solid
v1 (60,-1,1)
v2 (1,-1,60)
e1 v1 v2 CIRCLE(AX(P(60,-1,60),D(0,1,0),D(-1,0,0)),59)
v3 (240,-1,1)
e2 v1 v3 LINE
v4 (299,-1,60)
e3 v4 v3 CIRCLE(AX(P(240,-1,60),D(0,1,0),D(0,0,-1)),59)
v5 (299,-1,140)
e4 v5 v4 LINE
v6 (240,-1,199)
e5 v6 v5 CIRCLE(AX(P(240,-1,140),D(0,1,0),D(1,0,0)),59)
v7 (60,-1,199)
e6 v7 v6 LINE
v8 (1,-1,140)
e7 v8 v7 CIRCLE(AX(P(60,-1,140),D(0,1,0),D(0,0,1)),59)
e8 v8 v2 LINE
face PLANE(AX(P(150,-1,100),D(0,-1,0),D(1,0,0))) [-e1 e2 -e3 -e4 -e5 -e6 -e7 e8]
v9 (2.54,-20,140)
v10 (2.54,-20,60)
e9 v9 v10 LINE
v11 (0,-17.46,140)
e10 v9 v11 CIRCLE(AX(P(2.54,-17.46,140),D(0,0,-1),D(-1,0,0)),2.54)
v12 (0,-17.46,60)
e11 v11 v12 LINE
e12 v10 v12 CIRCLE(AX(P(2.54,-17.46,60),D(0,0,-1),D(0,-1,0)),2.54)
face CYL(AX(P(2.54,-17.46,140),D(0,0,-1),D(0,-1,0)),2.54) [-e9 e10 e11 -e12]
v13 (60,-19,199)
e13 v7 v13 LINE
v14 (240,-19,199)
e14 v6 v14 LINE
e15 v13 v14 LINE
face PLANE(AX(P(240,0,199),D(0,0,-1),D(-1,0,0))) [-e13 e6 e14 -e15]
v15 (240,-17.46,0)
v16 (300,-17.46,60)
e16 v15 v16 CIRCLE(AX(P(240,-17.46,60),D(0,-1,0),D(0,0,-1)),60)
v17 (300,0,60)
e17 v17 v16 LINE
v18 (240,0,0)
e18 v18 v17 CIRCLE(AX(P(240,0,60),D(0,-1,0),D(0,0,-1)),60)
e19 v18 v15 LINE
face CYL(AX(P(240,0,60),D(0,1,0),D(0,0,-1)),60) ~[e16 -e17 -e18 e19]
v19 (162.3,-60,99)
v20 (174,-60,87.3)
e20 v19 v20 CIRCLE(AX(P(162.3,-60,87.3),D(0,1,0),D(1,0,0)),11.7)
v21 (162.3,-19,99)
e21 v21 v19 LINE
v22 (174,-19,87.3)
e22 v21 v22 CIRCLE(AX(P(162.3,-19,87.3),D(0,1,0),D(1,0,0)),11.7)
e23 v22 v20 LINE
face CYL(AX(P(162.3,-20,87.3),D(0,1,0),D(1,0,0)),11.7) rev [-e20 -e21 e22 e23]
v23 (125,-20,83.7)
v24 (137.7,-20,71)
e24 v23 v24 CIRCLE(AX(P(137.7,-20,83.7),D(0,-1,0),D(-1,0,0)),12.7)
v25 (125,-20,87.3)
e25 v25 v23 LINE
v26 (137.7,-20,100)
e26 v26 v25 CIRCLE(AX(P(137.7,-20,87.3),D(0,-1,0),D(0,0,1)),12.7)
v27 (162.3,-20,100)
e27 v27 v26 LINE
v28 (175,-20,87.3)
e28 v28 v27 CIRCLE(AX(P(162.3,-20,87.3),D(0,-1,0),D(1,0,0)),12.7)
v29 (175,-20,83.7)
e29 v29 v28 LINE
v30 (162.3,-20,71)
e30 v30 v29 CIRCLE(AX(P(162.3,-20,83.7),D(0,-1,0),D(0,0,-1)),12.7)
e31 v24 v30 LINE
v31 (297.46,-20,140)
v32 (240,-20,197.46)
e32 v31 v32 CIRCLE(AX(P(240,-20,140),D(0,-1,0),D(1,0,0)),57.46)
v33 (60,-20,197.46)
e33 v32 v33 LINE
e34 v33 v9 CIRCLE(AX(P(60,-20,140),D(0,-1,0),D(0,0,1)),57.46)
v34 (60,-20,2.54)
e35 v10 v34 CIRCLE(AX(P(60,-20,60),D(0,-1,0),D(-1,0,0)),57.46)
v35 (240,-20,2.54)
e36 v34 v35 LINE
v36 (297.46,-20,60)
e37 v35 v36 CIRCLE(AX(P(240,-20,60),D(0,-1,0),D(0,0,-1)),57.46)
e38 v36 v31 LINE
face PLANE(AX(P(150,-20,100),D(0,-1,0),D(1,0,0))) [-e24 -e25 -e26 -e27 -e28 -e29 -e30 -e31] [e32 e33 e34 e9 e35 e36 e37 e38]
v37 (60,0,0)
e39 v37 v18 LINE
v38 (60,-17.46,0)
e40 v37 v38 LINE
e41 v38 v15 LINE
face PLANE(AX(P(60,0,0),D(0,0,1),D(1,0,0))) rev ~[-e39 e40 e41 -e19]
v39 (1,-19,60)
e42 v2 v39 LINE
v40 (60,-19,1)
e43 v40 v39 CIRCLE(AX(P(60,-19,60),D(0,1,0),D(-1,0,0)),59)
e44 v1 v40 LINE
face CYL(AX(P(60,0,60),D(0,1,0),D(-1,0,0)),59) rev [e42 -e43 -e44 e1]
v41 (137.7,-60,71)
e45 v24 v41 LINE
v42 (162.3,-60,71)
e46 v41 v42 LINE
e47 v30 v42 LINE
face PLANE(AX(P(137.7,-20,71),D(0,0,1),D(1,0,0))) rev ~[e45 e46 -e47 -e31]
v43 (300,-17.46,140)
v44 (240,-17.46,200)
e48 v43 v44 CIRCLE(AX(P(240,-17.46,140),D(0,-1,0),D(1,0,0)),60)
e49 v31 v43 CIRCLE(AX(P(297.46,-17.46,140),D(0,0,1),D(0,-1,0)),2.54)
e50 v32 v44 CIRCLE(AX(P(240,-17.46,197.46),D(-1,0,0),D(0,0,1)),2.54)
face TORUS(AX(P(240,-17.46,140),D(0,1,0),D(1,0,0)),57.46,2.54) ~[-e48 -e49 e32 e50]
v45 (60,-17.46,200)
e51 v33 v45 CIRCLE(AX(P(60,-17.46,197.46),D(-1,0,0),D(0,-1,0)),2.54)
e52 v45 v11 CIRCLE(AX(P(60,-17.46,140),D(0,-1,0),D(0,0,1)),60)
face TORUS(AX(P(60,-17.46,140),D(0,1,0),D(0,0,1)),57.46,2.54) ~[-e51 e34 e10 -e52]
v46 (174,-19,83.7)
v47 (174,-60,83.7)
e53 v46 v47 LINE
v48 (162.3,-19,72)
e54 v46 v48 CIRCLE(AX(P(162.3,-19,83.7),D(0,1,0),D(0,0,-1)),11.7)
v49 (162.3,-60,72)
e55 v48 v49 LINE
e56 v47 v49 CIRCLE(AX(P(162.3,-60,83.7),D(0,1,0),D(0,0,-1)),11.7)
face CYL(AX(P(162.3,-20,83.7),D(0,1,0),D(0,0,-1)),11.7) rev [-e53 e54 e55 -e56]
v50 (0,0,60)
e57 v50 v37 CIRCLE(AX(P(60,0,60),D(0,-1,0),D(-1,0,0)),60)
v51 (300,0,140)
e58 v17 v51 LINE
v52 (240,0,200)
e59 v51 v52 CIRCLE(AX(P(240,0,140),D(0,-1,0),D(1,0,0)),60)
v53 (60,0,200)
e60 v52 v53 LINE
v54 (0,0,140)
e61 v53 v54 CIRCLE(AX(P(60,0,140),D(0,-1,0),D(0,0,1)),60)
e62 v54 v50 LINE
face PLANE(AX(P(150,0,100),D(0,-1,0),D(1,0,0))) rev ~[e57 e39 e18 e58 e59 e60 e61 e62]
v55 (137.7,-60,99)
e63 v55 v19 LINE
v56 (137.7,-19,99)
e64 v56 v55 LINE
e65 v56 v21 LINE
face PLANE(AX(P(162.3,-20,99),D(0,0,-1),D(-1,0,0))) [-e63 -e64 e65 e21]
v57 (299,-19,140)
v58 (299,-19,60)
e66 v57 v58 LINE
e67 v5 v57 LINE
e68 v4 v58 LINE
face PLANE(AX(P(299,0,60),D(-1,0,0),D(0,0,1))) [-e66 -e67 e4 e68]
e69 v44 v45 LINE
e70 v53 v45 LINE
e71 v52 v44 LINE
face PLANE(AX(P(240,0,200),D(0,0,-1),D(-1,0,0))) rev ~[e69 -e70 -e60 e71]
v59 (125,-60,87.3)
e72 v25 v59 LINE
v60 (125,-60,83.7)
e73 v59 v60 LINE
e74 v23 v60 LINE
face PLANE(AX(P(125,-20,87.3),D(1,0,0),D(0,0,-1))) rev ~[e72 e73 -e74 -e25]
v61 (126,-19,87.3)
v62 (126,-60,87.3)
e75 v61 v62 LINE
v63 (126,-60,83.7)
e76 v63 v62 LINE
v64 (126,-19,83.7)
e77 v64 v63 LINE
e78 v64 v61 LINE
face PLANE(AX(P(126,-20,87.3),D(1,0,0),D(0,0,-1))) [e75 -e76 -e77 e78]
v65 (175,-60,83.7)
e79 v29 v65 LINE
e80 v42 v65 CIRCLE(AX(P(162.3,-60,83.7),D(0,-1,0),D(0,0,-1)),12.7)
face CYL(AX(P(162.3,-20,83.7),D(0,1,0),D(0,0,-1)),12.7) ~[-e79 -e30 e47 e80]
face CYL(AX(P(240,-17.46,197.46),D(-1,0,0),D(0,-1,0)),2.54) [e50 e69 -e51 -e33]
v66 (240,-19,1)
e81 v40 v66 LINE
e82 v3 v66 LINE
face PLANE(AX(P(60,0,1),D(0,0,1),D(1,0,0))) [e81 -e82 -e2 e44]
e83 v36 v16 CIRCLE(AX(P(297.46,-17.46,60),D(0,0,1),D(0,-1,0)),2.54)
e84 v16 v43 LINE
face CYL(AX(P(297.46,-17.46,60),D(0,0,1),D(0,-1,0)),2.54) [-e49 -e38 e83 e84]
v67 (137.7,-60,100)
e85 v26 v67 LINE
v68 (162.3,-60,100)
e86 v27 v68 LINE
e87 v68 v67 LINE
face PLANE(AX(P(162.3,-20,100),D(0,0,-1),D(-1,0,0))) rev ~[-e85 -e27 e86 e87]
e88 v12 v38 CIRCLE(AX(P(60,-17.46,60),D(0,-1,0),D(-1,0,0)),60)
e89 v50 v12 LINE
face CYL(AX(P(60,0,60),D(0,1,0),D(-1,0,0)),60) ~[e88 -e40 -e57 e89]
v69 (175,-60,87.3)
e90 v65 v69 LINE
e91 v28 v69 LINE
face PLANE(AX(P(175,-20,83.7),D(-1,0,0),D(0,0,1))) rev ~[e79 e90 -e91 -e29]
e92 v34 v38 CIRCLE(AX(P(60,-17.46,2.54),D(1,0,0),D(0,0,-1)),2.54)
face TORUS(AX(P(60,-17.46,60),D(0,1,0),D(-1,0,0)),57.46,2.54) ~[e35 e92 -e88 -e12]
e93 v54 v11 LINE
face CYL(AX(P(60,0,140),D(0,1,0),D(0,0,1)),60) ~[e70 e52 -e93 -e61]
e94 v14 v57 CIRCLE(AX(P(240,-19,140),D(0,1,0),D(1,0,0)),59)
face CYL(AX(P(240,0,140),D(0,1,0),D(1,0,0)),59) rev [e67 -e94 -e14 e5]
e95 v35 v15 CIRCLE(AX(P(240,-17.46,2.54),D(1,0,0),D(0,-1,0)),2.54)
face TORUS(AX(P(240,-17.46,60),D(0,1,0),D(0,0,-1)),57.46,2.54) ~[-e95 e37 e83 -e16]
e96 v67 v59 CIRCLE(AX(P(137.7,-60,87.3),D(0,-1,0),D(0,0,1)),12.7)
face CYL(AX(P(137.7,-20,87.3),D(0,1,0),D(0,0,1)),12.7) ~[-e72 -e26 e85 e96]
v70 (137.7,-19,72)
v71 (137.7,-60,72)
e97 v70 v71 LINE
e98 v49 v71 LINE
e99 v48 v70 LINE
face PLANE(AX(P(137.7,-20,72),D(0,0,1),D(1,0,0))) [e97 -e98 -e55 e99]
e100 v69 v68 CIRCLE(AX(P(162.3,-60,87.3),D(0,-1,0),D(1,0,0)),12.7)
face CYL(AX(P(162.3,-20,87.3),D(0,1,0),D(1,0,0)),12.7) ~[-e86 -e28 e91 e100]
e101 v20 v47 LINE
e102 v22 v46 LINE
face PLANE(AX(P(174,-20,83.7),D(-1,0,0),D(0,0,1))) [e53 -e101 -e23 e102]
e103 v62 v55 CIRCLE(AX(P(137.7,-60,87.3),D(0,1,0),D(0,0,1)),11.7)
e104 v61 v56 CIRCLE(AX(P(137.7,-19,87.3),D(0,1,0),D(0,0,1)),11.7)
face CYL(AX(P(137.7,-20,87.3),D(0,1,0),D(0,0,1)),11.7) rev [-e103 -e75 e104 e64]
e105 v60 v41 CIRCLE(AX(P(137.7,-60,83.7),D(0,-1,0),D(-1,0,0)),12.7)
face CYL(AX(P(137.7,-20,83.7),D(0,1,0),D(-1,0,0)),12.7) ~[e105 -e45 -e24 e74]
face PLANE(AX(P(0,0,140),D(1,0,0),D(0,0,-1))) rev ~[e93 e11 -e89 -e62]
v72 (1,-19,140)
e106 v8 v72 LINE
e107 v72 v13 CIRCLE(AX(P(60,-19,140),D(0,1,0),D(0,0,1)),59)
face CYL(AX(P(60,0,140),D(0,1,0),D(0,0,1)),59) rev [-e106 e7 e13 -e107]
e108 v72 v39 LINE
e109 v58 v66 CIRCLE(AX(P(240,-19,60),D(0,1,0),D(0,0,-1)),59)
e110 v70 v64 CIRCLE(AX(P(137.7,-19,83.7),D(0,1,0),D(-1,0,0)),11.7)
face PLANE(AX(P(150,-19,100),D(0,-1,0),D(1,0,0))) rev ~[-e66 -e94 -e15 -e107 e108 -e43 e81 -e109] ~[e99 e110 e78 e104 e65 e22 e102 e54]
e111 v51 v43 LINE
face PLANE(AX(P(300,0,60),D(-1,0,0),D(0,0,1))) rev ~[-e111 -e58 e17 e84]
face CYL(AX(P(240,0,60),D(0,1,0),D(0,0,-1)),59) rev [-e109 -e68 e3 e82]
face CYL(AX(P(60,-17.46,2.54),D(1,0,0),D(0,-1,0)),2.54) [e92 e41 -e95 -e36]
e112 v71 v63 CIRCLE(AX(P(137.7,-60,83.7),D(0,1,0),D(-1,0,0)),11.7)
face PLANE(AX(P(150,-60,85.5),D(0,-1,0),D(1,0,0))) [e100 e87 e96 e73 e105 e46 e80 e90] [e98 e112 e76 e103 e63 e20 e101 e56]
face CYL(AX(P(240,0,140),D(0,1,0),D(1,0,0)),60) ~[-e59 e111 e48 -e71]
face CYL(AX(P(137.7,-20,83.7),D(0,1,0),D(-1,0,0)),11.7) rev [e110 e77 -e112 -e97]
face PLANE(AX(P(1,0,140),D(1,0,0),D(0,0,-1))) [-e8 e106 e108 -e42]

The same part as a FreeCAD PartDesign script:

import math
import FreeCAD as App
import Part
import Sketcher
Q = App.Units.Quantity


def edges_at(feature, points):
    """Names of the edges that pass closest to the given points."""
    edges = feature.Shape.Edges
    near = lambda p: min(range(len(edges)), key=lambda i: edges[i].distToShape(Part.Vertex(*p))[0])
    return sorted({f"Edge{near(p) + 1}" for p in points})


def faces_at(feature, points):
    """Names of the faces that lie closest to the given points."""
    faces = feature.Shape.Faces
    near = lambda p: min(range(len(faces)), key=lambda i: faces[i].distToShape(Part.Vertex(*p))[0])
    return sorted({f"Face{near(p) + 1}" for p in points})

doc = App.newDocument("Part")
body = doc.addObject("PartDesign::Body", "Body")

sketch1 = body.newObject("Sketcher::SketchObject", "Sketch")
sketch1.AttachmentSupport = (doc.getObject("XZ_Plane"), [""])
sketch1.MapMode = "FlatFace"
sketch1.addGeometry([
    Part.ArcOfCircle(Part.Circle(App.Vector(60, 60, 0), App.Vector(0, 0, 1), 60), math.radians(180), math.radians(270)),
    Part.LineSegment(App.Vector(60, 0, 0), App.Vector(240, 0, 0)),
    Part.ArcOfCircle(Part.Circle(App.Vector(240, 60, 0), App.Vector(0, 0, 1), 60), math.radians(-90), math.radians(0)),
    Part.LineSegment(App.Vector(300, 60, 0), App.Vector(300, 140, 0)),
    Part.ArcOfCircle(Part.Circle(App.Vector(240, 140, 0), App.Vector(0, 0, 1), 60), math.radians(0), math.radians(90)),
    Part.LineSegment(App.Vector(240, 200, 0), App.Vector(60, 200, 0)),
    Part.ArcOfCircle(Part.Circle(App.Vector(60, 140, 0), App.Vector(0, 0, 1), 60), math.radians(90), math.radians(180)),
    Part.LineSegment(App.Vector(0, 140, 0), App.Vector(0, 60, 0)),
], False)
sketch1.addConstraint([
    Sketcher.Constraint("Tangent", 0, 2, 1, 1),
    Sketcher.Constraint("Tangent", 1, 2, 2, 1),
    Sketcher.Constraint("Tangent", 2, 2, 3, 1),
    Sketcher.Constraint("Tangent", 3, 2, 4, 1),
    Sketcher.Constraint("Tangent", 4, 2, 5, 1),
    Sketcher.Constraint("Tangent", 5, 2, 6, 1),
    Sketcher.Constraint("Tangent", 6, 2, 7, 1),
    Sketcher.Constraint("Tangent", 7, 2, 0, 1),
    Sketcher.Constraint("Horizontal", 1),
    Sketcher.Constraint("Vertical", 3),
    Sketcher.Constraint("Horizontal", 5),
    Sketcher.Constraint("Vertical", 7),
    Sketcher.Constraint("Equal", 0, 2),
    Sketcher.Constraint("Equal", 2, 4),
    Sketcher.Constraint("Equal", 4, 6),
    Sketcher.Constraint("PointOnObject", 0, 2, -1),
    Sketcher.Constraint("PointOnObject", 6, 2, -2),
    Sketcher.Constraint("Radius", 0, Q("60 mm")),
    Sketcher.Constraint("DistanceX", 1, 1, 1, 2, Q("180 mm")),
    Sketcher.Constraint("DistanceY", 3, 1, 3, 2, Q("80 mm")),
])
pad1 = body.newObject("PartDesign::Pad", "Pad")
pad1.Profile = sketch1
pad1.Length = 20

sketch2 = body.newObject("Sketcher::SketchObject", "Sketch001")
sketch2.AttachmentSupport = (doc.getObject("XZ_Plane"), [""])
sketch2.MapMode = "FlatFace"
sketch2.AttachmentOffset = App.Placement(App.Vector(0, 0, 20), App.Rotation())
sketch2.addGeometry([
    Part.LineSegment(App.Vector(175, 83.7, 0), App.Vector(175, 87.3, 0)),
    Part.ArcOfCircle(Part.Circle(App.Vector(162.3, 87.3, 0), App.Vector(0, 0, 1), 12.7), math.radians(0), math.radians(90)),
    Part.LineSegment(App.Vector(162.3, 100, 0), App.Vector(137.7, 100, 0)),
    Part.ArcOfCircle(Part.Circle(App.Vector(137.7, 87.3, 0), App.Vector(0, 0, 1), 12.7), math.radians(90), math.radians(180)),
    Part.LineSegment(App.Vector(125, 87.3, 0), App.Vector(125, 83.7, 0)),
    Part.ArcOfCircle(Part.Circle(App.Vector(137.7, 83.7, 0), App.Vector(0, 0, 1), 12.7), math.radians(180), math.radians(270)),
    Part.LineSegment(App.Vector(137.7, 71, 0), App.Vector(162.3, 71, 0)),
    Part.ArcOfCircle(Part.Circle(App.Vector(162.3, 83.7, 0), App.Vector(0, 0, 1), 12.7), math.radians(-90), math.radians(0)),
], False)
sketch2.addConstraint([
    Sketcher.Constraint("Tangent", 0, 2, 1, 1),
    Sketcher.Constraint("Tangent", 1, 2, 2, 1),
    Sketcher.Constraint("Tangent", 2, 2, 3, 1),
    Sketcher.Constraint("Tangent", 3, 2, 4, 1),
    Sketcher.Constraint("Tangent", 4, 2, 5, 1),
    Sketcher.Constraint("Tangent", 5, 2, 6, 1),
    Sketcher.Constraint("Tangent", 6, 2, 7, 1),
    Sketcher.Constraint("Tangent", 7, 2, 0, 1),
    Sketcher.Constraint("Vertical", 0),
    Sketcher.Constraint("Horizontal", 2),
    Sketcher.Constraint("Vertical", 4),
    Sketcher.Constraint("Horizontal", 6),
    Sketcher.Constraint("Equal", 1, 3),
    Sketcher.Constraint("Equal", 3, 5),
    Sketcher.Constraint("Equal", 5, 7),
    Sketcher.Constraint("Radius", 1, Q("12.7 mm")),
    Sketcher.Constraint("DistanceX", 2, 2, 2, 1, Q("24.6 mm")),
    Sketcher.Constraint("DistanceY", 0, 1, 0, 2, Q("3.6 mm")),
    Sketcher.Constraint("DistanceX", -1, 1, 0, 2, Q("175 mm")),
    Sketcher.Constraint("DistanceY", -1, 1, 1, 2, Q("100 mm")),
])
pad2 = body.newObject("PartDesign::Pad", "Pad001")
pad2.Profile = sketch2
pad2.Length = 40
doc.recompute()

thickness = body.newObject("PartDesign::Thickness", "Thickness")
thickness.Base = (pad2, faces_at(pad2, [(150, -60, 85.5)]))
thickness.Value = 1
thickness.Reversed = True
thickness.Join = "Intersection"
doc.recompute()

fillet = body.newObject("PartDesign::Fillet", "Fillet")
fillet.Base = (thickness, edges_at(thickness, [
    (300, -20, 100),
    (150, -20, 200),
    (0, -20, 100),
    (150, -20, 0),
]))
fillet.Radius = 2.54

doc.recompute()
